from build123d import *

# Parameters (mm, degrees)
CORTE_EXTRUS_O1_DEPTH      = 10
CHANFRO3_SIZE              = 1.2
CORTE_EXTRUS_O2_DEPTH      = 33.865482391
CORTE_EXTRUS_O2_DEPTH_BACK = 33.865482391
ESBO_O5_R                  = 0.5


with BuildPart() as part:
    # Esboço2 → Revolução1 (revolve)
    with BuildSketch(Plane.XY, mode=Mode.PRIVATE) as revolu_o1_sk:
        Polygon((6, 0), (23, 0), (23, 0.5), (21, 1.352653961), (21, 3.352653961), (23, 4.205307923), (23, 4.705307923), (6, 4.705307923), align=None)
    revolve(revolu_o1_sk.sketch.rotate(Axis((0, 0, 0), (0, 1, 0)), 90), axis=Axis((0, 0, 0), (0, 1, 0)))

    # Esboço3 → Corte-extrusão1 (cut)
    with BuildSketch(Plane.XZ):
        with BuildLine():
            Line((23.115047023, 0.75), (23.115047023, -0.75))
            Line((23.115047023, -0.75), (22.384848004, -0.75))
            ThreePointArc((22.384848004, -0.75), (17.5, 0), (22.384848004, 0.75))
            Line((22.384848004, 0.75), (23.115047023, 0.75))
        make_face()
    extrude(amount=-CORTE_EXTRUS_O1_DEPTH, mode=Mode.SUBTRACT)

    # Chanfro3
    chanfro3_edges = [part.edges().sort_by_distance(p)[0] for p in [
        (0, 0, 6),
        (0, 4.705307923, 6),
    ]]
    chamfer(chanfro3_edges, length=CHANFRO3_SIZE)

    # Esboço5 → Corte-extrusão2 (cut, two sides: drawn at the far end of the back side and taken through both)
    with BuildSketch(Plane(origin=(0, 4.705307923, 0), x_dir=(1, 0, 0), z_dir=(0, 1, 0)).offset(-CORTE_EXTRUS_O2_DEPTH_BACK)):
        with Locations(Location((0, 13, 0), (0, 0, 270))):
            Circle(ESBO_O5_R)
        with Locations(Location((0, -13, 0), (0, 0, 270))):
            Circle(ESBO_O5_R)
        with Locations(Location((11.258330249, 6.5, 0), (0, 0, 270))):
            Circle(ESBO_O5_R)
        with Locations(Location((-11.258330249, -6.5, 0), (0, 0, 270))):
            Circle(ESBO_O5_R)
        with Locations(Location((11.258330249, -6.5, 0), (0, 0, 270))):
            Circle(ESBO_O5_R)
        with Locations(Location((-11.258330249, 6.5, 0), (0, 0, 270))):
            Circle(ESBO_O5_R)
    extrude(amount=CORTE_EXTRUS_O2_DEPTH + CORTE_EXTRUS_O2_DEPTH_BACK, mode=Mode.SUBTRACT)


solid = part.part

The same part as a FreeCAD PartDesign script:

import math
import FreeCAD as App
import Part
import Sketcher
from FreeCAD import Vector


def edges_at(feature, points):
    """Names of the edges that pass closest to the given points."""
    edges = feature.Shape.Edges
    near = lambda p: min(range(len(edges)), key=lambda i: edges[i].distToShape(Part.Vertex(*p))[0])
    return sorted({f"Edge{near(p) + 1}" for p in points})

doc = App.newDocument("Part")
body = doc.addObject("PartDesign::Body", "Body")

# Sketch on XY plane
sketch1 = doc.addObject("Sketcher::SketchObject", "Sketch")
body.addObject(sketch1)
sketch1.AttachmentSupport = (doc.XY_Plane, [""])
sketch1.MapMode = "FlatFace"
sketch1.addGeometry(Part.LineSegment(Vector(6, 0, 0), Vector(23, 0, 0)), False)
sketch1.addGeometry(Part.LineSegment(Vector(23, 0, 0), Vector(23, 0.5, 0)), False)
sketch1.addGeometry(Part.LineSegment(Vector(23, 0.5, 0), Vector(21, 1.4, 0)), False)
sketch1.addGeometry(Part.LineSegment(Vector(21, 1.4, 0), Vector(21, 3.4, 0)), False)
sketch1.addGeometry(Part.LineSegment(Vector(21, 3.4, 0), Vector(23, 4.2, 0)), False)
sketch1.addGeometry(Part.LineSegment(Vector(23, 4.2, 0), Vector(23, 4.7, 0)), False)
sketch1.addGeometry(Part.LineSegment(Vector(23, 4.7, 0), Vector(6, 4.7, 0)), False)
sketch1.addGeometry(Part.LineSegment(Vector(6, 4.7, 0), Vector(6, 0, 0)), False)
sketch1.addConstraint(Sketcher.Constraint("Coincident", 0, 2, 1, 1))
sketch1.addConstraint(Sketcher.Constraint("Coincident", 1, 2, 2, 1))
sketch1.addConstraint(Sketcher.Constraint("Coincident", 2, 2, 3, 1))
sketch1.addConstraint(Sketcher.Constraint("Coincident", 3, 2, 4, 1))
sketch1.addConstraint(Sketcher.Constraint("Coincident", 4, 2, 5, 1))
sketch1.addConstraint(Sketcher.Constraint("Coincident", 5, 2, 6, 1))
sketch1.addConstraint(Sketcher.Constraint("Coincident", 6, 2, 7, 1))
sketch1.addConstraint(Sketcher.Constraint("Coincident", 7, 2, 0, 1))
sketch1.addConstraint(Sketcher.Constraint("Horizontal", 0))
sketch1.addConstraint(Sketcher.Constraint("Vertical", 1))
sketch1.addConstraint(Sketcher.Constraint("Vertical", 3))
sketch1.addConstraint(Sketcher.Constraint("Vertical", 5))
sketch1.addConstraint(Sketcher.Constraint("Horizontal", 6))
sketch1.addConstraint(Sketcher.Constraint("Vertical", 7))
sketch1.addConstraint(Sketcher.Constraint("PointOnObject", 0, 2, -1))
sketch1.addConstraint(Sketcher.Constraint("Vertical", 1, 2, 4, 2))
sketch1.addConstraint(Sketcher.Constraint("Equal", 1, 5))
sketch1.addConstraint(Sketcher.Constraint("Equal", 2, 4))
sketch1.addConstraint(Sketcher.Constraint("DistanceX", 0, 1, 0, 2, 17.0))
sketch1.addConstraint(Sketcher.Constraint("DistanceY", 3, 1, 3, 2, 2.0))
sketch1.addConstraint(Sketcher.Constraint("DistanceY", 1, 1, 1, 2, 0.5))
sketch1.addConstraint(Sketcher.Constraint("DistanceX", -1, 1, 0, 2, 23.0))
sketch1.addConstraint(Sketcher.Constraint("DistanceX", -1, 1, 2, 2, 21.0))
sketch1.addConstraint(Sketcher.Constraint("Distance", 2, 2.174171))
revolution = doc.addObject("PartDesign::Revolution", "Revolution")
body.addObject(revolution)
revolution.Profile = sketch1
revolution.ReferenceAxis = (sketch1, ["V_Axis"])
revolution.Angle = 360

# Sketch on XZ plane
sketch2 = doc.addObject("Sketcher::SketchObject", "Sketch001")
body.addObject(sketch2)
sketch2.AttachmentSupport = (doc.XZ_Plane, [""])
sketch2.MapMode = "FlatFace"
sketch2.addGeometry(Part.LineSegment(Vector(23.1, -0.8, 0), Vector(23.1, 0.8, 0)), False)
sketch2.addGeometry(Part.LineSegment(Vector(23.1, 0.8, 0), Vector(22.4, 0.8, 0)), False)
sketch2.addGeometry(Part.ArcOfCircle(Part.Circle(Vector(20, 0, 0), Vector(0, 0, 1), 2.5), math.radians(17), math.radians(343)), False)
sketch2.addGeometry(Part.LineSegment(Vector(22.4, -0.8, 0), Vector(23.1, -0.8, 0)), False)
sketch2.addConstraint(Sketcher.Constraint("Coincident", 0, 2, 1, 1))
sketch2.addConstraint(Sketcher.Constraint("Coincident", 1, 2, 2, 1))
sketch2.addConstraint(Sketcher.Constraint("Coincident", 2, 2, 3, 1))
sketch2.addConstraint(Sketcher.Constraint("Coincident", 3, 2, 0, 1))
sketch2.addConstraint(Sketcher.Constraint("Vertical", 0))
sketch2.addConstraint(Sketcher.Constraint("Horizontal", 1))
sketch2.addConstraint(Sketcher.Constraint("Horizontal", 3))
sketch2.addConstraint(Sketcher.Constraint("Symmetric", 1, 2, 2, 2, -1))
sketch2.addConstraint(Sketcher.Constraint("Radius", 2, 2.5))
sketch2.addConstraint(Sketcher.Constraint("DistanceY", 0, 1, 0, 2, 1.5))
sketch2.addConstraint(Sketcher.Constraint("DistanceX", -1, 1, 2, 3, 20.0))
sketch2.addConstraint(Sketcher.Constraint("DistanceX", 1, 2, 1, 1, 0.730199))
pocket1 = doc.addObject("PartDesign::Pocket", "Pocket")
body.addObject(pocket1)
pocket1.Profile = sketch2
pocket1.Length = 10
doc.recompute()

chamfer = doc.addObject("PartDesign::Chamfer", "Chamfer")
body.addObject(chamfer)
chamfer.Base = (pocket1, edges_at(pocket1, [(0, 0, 6), (0, 4.705, 6)]))
chamfer.Size = 1.2

# Sketch on XZ plane
sketch3 = doc.addObject("Sketcher::SketchObject", "Sketch002")
body.addObject(sketch3)
sketch3.AttachmentSupport = (doc.XZ_Plane, [""])
sketch3.MapMode = "FlatFace"
sketch3.AttachmentOffset = App.Placement(Vector(0, 0, -4.705308), App.Rotation())
sketch3.addGeometry(Part.Circle(Vector(0, -13, 0), Vector(0, 0, 1), 0.5), False)
sketch3.addGeometry(Part.Circle(Vector(0, 13, 0), Vector(0, 0, 1), 0.5), False)
sketch3.addGeometry(Part.Circle(Vector(11.3, -6.5, 0), Vector(0, 0, 1), 0.5), False)
sketch3.addGeometry(Part.Circle(Vector(-11.3, 6.5, 0), Vector(0, 0, 1), 0.5), False)
sketch3.addGeometry(Part.Circle(Vector(11.3, 6.5, 0), Vector(0, 0, 1), 0.5), False)
sketch3.addGeometry(Part.Circle(Vector(-11.3, -6.5, 0), Vector(0, 0, 1), 0.5), False)
sketch3.addConstraint(Sketcher.Constraint("Equal", 0, 1))
sketch3.addConstraint(Sketcher.Constraint("Equal", 1, 2))
sketch3.addConstraint(Sketcher.Constraint("Equal", 2, 3))
sketch3.addConstraint(Sketcher.Constraint("Equal", 3, 4))
sketch3.addConstraint(Sketcher.Constraint("Equal", 4, 5))
sketch3.addConstraint(Sketcher.Constraint("Symmetric", 0, 3, 1, 3, -1, 1))
sketch3.addConstraint(Sketcher.Constraint("Symmetric", 2, 3, 3, 3, -1, 1))
sketch3.addConstraint(Sketcher.Constraint("Symmetric", 4, 3, 5, 3, -1, 1))
sketch3.addConstraint(Sketcher.Constraint("Symmetric", 3, 3, 4, 3, -2))
sketch3.addConstraint(Sketcher.Constraint("PointOnObject", 0, 3, -2))
sketch3.addConstraint(Sketcher.Constraint("Diameter", 0, 1.0))
sketch3.addConstraint(Sketcher.Constraint("DistanceY", 0, 3, -1, 1, 13.0))
sketch3.addConstraint(Sketcher.Constraint("DistanceY", 2, 3, 3, 3, 13.0))
sketch3.addConstraint(Sketcher.Constraint("DistanceX", -1, 1, 2, 3, 11.25833))
pocket2 = doc.addObject("PartDesign::Pocket", "Pocket001")
body.addObject(pocket2)
pocket2.Profile = sketch3
pocket2.Type = "ThroughAll"
pocket2.Midplane = True

doc.recompute()
